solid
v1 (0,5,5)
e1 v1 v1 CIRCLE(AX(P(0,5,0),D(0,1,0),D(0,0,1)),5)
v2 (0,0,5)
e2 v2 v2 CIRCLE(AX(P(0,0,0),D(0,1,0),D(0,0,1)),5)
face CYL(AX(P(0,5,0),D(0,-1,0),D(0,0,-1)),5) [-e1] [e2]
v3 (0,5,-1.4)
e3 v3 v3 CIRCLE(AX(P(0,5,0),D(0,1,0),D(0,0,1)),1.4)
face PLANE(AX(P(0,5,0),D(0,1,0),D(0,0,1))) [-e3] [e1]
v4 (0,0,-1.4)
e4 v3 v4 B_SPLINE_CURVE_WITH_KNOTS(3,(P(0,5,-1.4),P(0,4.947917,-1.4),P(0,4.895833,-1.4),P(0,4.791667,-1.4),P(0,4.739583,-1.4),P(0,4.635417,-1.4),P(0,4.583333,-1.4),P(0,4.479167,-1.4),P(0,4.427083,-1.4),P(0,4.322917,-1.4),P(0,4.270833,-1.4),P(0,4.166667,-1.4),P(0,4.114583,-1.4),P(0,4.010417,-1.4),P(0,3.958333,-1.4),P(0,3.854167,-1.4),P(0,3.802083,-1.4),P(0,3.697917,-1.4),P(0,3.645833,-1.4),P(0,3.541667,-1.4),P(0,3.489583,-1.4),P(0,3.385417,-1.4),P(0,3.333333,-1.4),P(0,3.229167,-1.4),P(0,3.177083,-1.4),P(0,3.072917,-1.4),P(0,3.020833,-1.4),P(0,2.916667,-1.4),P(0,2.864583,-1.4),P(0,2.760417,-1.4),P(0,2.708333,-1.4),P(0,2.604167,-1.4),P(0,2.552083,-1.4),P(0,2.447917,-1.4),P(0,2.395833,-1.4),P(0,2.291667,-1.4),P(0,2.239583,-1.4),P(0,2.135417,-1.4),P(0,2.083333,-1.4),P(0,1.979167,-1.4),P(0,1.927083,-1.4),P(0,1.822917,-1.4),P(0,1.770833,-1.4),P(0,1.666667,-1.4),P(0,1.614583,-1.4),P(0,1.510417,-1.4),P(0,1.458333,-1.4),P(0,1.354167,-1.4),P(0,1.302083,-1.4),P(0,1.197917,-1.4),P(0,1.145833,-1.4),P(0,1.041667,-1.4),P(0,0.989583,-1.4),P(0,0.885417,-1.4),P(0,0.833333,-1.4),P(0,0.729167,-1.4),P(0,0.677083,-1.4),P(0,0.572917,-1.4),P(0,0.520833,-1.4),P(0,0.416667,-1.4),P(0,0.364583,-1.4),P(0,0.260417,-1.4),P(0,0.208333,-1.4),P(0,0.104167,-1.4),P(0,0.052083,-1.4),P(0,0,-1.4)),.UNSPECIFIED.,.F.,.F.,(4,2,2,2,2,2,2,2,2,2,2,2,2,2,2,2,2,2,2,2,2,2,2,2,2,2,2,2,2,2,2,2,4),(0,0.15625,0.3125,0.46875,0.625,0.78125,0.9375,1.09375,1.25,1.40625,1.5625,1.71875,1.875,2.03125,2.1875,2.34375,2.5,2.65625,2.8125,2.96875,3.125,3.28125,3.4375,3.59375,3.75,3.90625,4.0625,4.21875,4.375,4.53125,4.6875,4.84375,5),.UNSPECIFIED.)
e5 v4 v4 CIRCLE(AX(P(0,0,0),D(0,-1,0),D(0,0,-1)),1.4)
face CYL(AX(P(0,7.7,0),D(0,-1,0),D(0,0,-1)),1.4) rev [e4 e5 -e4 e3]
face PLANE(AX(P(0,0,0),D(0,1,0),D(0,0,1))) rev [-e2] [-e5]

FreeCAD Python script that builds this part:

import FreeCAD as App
import Part
import Sketcher
from FreeCAD import Vector

doc = App.newDocument("Part")
body = doc.addObject("PartDesign::Body", "Body")

# Sketch on XZ plane
sketch1 = body.newObject("Sketcher::SketchObject", "Sketch")
sketch1.AttachmentSupport = (doc.getObject("XZ_Plane"), [""])
sketch1.MapMode = "FlatFace"
sketch1.addGeometry(Part.Circle(Vector(0, 0, 0), Vector(0, 0, 1), 5), False)
sketch1.addConstraint([
    Sketcher.Constraint("Coincident", 0, 3, -1, 1),
    Sketcher.Constraint("Diameter", 0, 10.0),
])
pad1 = body.newObject("PartDesign::Pad", "Pad")
pad1.Profile = sketch1
pad1.Length = 5
pad1.Reversed = True

# Sketch on XZ plane
sketch2 = body.newObject("Sketcher::SketchObject", "Sketch001")
sketch2.AttachmentSupport = (doc.getObject("XZ_Plane"), [""])
sketch2.MapMode = "FlatFace"
sketch2.addGeometry(Part.Circle(Vector(0, 0, 0), Vector(0, 0, 1), 1.4), False)
sketch2.addConstraint([
    Sketcher.Constraint("Coincident", 0, 3, -1, 1),
    Sketcher.Constraint("Diameter", 0, 2.8),
])
pocket1 = body.newObject("PartDesign::Pocket", "Pocket")
pocket1.Profile = sketch2
pocket1.Length = 7.7

doc.recompute()
